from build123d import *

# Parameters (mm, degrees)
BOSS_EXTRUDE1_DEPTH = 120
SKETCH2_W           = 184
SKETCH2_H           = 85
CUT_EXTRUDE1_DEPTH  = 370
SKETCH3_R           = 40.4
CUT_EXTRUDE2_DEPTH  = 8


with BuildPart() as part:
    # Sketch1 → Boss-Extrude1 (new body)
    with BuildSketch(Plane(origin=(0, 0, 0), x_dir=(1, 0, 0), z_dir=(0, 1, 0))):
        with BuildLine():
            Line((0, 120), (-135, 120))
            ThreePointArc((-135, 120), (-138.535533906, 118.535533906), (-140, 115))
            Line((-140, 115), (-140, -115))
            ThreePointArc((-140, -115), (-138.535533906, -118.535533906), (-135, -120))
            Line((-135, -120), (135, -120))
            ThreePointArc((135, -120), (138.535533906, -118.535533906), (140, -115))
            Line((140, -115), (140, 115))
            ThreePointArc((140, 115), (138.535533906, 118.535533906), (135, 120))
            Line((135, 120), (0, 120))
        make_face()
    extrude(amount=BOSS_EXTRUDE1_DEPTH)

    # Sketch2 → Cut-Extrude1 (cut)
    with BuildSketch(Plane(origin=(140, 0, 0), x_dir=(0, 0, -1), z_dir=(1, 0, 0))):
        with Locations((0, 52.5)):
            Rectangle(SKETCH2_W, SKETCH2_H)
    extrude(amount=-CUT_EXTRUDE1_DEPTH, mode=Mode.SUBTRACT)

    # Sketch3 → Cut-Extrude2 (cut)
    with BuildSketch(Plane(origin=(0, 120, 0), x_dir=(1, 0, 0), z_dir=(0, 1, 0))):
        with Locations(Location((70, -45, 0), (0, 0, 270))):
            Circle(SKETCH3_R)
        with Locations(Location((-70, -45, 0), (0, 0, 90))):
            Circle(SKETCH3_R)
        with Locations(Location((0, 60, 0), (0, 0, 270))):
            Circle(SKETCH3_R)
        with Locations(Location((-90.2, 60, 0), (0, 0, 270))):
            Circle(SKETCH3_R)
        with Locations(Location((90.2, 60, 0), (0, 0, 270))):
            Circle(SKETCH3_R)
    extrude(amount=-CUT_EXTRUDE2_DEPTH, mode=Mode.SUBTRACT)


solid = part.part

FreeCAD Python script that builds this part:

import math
import FreeCAD as App
import Part
import Sketcher

V = App.Vector
Q = App.Units.Quantity


def add_polygon(sketch, points):
    """Adds a closed chain of lines whose ends are joined by coincident constraints."""
    first, n = sketch.GeometryCount, len(points)
    for a, b in zip(points, points[1:] + points[:1]):
        sketch.addGeometry(Part.LineSegment(App.Vector(*a, 0), App.Vector(*b, 0)), False)
    for i in range(n):
        sketch.addConstraint(Sketcher.Constraint("Coincident", first + i, 2, first + (i + 1) % n, 1))

doc = App.newDocument("Part")
body = doc.addObject("PartDesign::Body", "Body")

sketch1 = doc.addObject("Sketcher::SketchObject", "Sketch")
body.addObject(sketch1)
sketch1.AttachmentSupport = (doc.XZ_Plane, [""])
sketch1.MapMode = "FlatFace"
sketch1.addGeometry([
    Part.ArcOfCircle(Part.Circle(V(-135, -115, 0), V(0, 0, 1), 5), math.radians(180), math.radians(270)),
    Part.LineSegment(V(-140, -115, 0), V(-140, 115, 0)),
    Part.ArcOfCircle(Part.Circle(V(-135, 115, 0), V(0, 0, 1), 5), math.radians(90), math.radians(180)),
    Part.LineSegment(V(-135, 120, 0), V(135, 120, 0)),
    Part.ArcOfCircle(Part.Circle(V(135, 115, 0), V(0, 0, 1), 5), math.radians(0), math.radians(90)),
    Part.LineSegment(V(140, 115, 0), V(140, -115, 0)),
    Part.ArcOfCircle(Part.Circle(V(135, -115, 0), V(0, 0, 1), 5), math.radians(-90), math.radians(0)),
    Part.LineSegment(V(135, -120, 0), V(-135, -120, 0)),
], False)
sketch1.addConstraint([
    Sketcher.Constraint("Tangent", 0, 1, 1, 1),
    Sketcher.Constraint("Tangent", 1, 2, 2, 2),
    Sketcher.Constraint("Tangent", 2, 1, 3, 1),
    Sketcher.Constraint("Tangent", 3, 2, 4, 2),
    Sketcher.Constraint("Tangent", 4, 1, 5, 1),
    Sketcher.Constraint("Tangent", 5, 2, 6, 2),
    Sketcher.Constraint("Tangent", 6, 1, 7, 1),
    Sketcher.Constraint("Tangent", 7, 2, 0, 2),
    Sketcher.Constraint("Vertical", 1),
    Sketcher.Constraint("Horizontal", 3),
    Sketcher.Constraint("Vertical", 5),
    Sketcher.Constraint("Horizontal", 7),
    Sketcher.Constraint("Equal", 0, 2),
    Sketcher.Constraint("Equal", 2, 4),
    Sketcher.Constraint("Equal", 4, 6),
    Sketcher.Constraint("Symmetric", 0, 3, 4, 3, -1, 1),
    Sketcher.Constraint("Radius", 0, Q("5 mm")),
    Sketcher.Constraint("DistanceX", 3, 1, 3, 2, Q("270 mm")),
    Sketcher.Constraint("DistanceY", 1, 1, 1, 2, Q("230 mm")),
])
pad1 = doc.addObject("PartDesign::Pad", "Pad")
body.addObject(pad1)
pad1.Profile = sketch1
pad1.Length = 120
pad1.Reversed = True

sketch2 = doc.addObject("Sketcher::SketchObject", "Sketch001")
body.addObject(sketch2)
sketch2.AttachmentSupport = (doc.YZ_Plane, [""])
sketch2.MapMode = "FlatFace"
sketch2.AttachmentOffset = App.Placement(V(0, 0, 140), App.Rotation())
add_polygon(sketch2, [(95, 92), (10, 92), (10, -92), (95, -92)])
sketch2.addConstraint([
    Sketcher.Constraint("Horizontal", 0),
    Sketcher.Constraint("Vertical", 1),
    Sketcher.Constraint("Horizontal", 2),
    Sketcher.Constraint("Vertical", 3),
    Sketcher.Constraint("DistanceX", 0, 2, 0, 1, Q("85 mm")),
    Sketcher.Constraint("DistanceY", 1, 2, 1, 1, Q("184 mm")),
    Sketcher.Constraint("DistanceX", -1, 1, 0, 2, Q("10 mm")),
    Sketcher.Constraint("DistanceY", -1, 1, 0, 2, Q("92 mm")),
])
pocket1 = doc.addObject("PartDesign::Pocket", "Pocket")
body.addObject(pocket1)
pocket1.Profile = sketch2
pocket1.Length = 370

sketch3 = doc.addObject("Sketcher::SketchObject", "Sketch002")
body.addObject(sketch3)
sketch3.AttachmentSupport = (doc.XZ_Plane, [""])
sketch3.MapMode = "FlatFace"
sketch3.AttachmentOffset = App.Placement(V(0, 0, -120), App.Rotation())
sketch3.addGeometry([
    Part.Circle(V(70, 45, 0), V(0, 0, 1), 40),
    Part.Circle(V(-70, 45, 0), V(0, 0, 1), 40),
    Part.Circle(V(0, -60, 0), V(0, 0, 1), 40),
    Part.Circle(V(-90, -60, 0), V(0, 0, 1), 40),
    Part.Circle(V(90, -60, 0), V(0, 0, 1), 40),
], False)
sketch3.addConstraint([
    Sketcher.Constraint("Equal", 0, 1),
    Sketcher.Constraint("Equal", 1, 2),
    Sketcher.Constraint("Equal", 2, 3),
    Sketcher.Constraint("Equal", 3, 4),
    Sketcher.Constraint("Symmetric", 0, 3, 1, 3, -2),
    Sketcher.Constraint("Symmetric", 3, 3, 4, 3, -2),
    Sketcher.Constraint("PointOnObject", 2, 3, -2),
    Sketcher.Constraint("Horizontal", 2, 3, 3, 3),
    Sketcher.Constraint("Diameter", 0, Q("80.8 mm")),
    Sketcher.Constraint("DistanceX", -1, 1, 0, 3, Q("70 mm")),
    Sketcher.Constraint("DistanceY", -1, 1, 0, 3, Q("45 mm")),
    Sketcher.Constraint("DistanceY", 2, 3, -1, 1, Q("60 mm")),
    Sketcher.Constraint("DistanceX", 3, 3, -1, 1, Q("90.2 mm")),
])
pocket2 = doc.addObject("PartDesign::Pocket", "Pocket001")
body.addObject(pocket2)
pocket2.Profile = sketch3
pocket2.Length = 8
pocket2.Reversed = True

doc.recompute()
